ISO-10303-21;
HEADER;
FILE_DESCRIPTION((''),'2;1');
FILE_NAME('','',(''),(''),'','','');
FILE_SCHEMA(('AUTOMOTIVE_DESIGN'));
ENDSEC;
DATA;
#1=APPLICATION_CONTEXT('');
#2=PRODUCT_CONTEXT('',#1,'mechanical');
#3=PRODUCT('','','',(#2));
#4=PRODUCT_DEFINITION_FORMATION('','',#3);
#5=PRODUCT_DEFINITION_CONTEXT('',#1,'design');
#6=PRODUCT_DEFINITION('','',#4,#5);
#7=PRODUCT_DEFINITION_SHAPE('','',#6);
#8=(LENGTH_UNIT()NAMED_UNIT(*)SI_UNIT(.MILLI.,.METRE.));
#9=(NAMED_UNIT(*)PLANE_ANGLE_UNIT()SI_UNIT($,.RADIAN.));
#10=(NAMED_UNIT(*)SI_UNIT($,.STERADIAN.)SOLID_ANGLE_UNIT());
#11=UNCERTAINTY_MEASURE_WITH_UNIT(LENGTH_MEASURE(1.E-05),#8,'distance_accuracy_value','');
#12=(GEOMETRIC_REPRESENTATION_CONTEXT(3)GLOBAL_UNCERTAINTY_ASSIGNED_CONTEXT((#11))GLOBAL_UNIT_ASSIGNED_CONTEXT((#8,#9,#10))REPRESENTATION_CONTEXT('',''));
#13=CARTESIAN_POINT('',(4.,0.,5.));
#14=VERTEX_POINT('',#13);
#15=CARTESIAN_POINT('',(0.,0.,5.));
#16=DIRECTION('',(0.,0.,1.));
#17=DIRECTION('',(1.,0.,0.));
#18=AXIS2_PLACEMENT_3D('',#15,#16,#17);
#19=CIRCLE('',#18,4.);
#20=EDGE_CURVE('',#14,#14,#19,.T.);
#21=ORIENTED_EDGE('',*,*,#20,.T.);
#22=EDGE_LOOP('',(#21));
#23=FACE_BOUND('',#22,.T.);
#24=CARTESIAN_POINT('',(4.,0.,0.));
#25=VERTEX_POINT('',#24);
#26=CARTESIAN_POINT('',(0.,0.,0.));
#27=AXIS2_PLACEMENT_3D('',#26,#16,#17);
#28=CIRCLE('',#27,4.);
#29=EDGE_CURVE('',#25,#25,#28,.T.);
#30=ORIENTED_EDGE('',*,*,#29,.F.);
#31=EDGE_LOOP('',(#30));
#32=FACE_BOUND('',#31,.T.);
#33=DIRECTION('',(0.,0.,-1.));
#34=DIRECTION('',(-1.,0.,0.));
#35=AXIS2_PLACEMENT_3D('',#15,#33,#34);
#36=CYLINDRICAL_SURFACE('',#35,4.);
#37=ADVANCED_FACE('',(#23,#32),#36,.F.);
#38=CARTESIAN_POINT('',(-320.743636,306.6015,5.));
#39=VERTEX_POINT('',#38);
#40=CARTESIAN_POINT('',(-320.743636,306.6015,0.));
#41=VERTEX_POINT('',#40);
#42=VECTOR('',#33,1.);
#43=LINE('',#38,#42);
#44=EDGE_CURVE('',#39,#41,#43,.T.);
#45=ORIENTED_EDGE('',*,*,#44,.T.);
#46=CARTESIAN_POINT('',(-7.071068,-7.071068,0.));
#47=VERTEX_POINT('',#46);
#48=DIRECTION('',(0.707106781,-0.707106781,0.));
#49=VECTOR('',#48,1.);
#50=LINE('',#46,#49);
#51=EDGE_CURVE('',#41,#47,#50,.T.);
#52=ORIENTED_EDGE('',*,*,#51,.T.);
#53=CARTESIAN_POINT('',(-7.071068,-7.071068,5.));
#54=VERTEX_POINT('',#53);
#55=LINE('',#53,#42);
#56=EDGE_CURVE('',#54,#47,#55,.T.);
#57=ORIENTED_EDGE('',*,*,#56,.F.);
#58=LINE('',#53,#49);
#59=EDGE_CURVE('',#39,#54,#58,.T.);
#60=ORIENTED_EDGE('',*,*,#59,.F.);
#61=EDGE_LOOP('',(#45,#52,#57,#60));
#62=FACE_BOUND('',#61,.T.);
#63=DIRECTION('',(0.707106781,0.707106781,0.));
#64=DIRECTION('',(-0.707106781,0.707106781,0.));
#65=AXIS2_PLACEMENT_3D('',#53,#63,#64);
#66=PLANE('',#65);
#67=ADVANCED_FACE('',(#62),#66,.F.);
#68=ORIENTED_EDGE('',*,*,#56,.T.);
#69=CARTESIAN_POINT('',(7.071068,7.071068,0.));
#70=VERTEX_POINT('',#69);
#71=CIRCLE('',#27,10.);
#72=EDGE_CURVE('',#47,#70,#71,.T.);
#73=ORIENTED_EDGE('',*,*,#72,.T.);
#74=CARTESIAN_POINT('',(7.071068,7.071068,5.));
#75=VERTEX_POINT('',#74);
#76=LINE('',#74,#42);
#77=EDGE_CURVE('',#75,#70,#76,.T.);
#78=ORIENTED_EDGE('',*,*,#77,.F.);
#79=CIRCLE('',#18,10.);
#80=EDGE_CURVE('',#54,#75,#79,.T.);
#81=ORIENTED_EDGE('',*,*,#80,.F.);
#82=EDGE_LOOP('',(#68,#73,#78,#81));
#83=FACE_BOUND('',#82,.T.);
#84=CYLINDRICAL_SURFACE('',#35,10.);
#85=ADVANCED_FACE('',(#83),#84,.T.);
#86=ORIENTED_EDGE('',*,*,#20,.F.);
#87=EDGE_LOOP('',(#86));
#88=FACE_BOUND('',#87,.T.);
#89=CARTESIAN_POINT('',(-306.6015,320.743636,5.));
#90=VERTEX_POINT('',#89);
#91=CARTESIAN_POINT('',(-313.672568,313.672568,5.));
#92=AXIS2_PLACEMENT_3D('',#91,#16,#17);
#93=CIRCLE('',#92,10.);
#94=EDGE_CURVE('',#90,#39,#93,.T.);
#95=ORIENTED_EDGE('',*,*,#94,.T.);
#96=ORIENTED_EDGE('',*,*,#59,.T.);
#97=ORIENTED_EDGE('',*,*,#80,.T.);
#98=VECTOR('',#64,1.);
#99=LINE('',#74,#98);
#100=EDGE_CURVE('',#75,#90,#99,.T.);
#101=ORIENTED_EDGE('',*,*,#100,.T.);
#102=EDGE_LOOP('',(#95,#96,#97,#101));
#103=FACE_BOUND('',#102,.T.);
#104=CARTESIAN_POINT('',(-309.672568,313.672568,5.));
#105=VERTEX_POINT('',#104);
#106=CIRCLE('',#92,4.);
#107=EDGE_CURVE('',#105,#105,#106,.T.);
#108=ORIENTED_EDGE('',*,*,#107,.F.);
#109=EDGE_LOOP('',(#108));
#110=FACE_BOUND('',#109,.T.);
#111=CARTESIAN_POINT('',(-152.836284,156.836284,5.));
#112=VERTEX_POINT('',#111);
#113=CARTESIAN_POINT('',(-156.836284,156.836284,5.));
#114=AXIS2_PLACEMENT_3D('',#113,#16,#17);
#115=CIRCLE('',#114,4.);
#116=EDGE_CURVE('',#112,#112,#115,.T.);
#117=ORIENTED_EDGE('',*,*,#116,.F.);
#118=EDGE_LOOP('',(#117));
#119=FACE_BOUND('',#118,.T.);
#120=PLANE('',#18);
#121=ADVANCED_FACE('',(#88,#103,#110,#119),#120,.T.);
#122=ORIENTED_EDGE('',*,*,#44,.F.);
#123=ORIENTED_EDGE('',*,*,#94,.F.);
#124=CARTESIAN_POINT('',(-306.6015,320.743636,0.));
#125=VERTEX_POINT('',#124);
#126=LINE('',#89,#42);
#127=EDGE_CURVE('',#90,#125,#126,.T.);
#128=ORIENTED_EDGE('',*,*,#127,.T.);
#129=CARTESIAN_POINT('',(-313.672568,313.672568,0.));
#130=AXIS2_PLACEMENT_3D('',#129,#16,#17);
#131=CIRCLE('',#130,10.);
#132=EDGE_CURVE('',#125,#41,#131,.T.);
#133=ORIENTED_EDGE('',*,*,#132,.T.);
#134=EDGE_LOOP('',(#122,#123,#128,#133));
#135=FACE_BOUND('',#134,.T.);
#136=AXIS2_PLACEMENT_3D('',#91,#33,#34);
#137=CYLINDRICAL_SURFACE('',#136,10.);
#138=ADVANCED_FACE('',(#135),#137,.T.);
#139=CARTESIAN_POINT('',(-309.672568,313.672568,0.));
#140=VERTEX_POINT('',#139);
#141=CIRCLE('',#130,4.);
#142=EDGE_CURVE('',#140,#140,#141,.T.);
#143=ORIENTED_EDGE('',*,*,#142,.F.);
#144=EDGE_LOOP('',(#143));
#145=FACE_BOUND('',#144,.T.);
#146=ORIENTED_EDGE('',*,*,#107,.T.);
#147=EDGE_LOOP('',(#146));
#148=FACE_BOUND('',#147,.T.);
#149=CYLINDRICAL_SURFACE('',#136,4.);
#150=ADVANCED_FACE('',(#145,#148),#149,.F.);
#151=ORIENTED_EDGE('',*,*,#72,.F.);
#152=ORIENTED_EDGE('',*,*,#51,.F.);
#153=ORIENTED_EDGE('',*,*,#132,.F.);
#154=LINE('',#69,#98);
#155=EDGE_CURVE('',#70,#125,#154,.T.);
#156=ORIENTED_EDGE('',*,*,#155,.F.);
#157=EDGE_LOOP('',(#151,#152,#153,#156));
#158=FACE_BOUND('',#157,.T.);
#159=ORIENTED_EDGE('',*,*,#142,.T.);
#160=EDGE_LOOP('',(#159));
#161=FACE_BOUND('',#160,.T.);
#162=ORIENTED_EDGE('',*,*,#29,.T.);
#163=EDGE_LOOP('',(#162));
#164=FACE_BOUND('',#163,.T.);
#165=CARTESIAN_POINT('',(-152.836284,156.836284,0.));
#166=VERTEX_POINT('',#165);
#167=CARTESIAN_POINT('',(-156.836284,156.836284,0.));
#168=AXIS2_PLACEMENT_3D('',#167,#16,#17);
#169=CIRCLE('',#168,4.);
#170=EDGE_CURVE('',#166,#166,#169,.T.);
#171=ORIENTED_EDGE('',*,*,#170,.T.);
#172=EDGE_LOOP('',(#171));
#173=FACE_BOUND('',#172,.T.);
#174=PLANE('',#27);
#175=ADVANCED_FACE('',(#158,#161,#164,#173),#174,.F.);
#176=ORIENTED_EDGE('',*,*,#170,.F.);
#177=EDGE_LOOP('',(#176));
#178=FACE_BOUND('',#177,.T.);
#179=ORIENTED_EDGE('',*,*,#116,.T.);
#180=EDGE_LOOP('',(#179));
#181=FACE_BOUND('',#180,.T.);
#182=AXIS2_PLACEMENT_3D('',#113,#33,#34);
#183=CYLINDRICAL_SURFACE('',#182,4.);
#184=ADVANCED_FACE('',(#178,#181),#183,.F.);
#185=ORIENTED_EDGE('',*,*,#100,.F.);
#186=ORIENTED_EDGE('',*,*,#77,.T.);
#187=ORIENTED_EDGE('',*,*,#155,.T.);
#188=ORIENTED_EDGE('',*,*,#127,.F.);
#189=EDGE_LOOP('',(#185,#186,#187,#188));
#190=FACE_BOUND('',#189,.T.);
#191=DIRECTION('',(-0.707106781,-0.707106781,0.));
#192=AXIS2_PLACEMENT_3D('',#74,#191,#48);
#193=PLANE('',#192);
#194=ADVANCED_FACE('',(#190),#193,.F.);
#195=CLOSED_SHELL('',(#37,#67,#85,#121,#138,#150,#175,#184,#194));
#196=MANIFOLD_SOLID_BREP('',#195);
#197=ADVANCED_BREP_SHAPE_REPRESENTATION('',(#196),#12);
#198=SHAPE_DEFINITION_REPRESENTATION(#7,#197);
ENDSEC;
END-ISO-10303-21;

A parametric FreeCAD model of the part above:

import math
import FreeCAD as App
import Part
import Sketcher

V = App.Vector
Q = App.Units.Quantity

doc = App.newDocument("Part")
body = doc.addObject("PartDesign::Body", "Body")

# Sketch on XY plane
sketch1 = doc.addObject("Sketcher::SketchObject", "Sketch")
body.addObject(sketch1)
sketch1.AttachmentSupport = (doc.XY_Plane, [""])
sketch1.MapMode = "FlatFace"
sketch1.addGeometry([
    Part.LineSegment(V(-320.743636, 306.6015, 0), V(-7.071068, -7.071068, 0)),  # 0
    Part.ArcOfCircle(Part.Circle(V(0, 0, 0), V(0, 0, 1), 10), math.radians(-135), math.radians(45)),  # 1
    Part.LineSegment(V(7.071068, 7.071068, 0), V(-306.6015, 320.743636, 0)),  # 2
    Part.ArcOfCircle(Part.Circle(V(-313.672568, 313.672568, 0), V(0, 0, 1), 10), math.radians(45), math.radians(225)),  # 3
    Part.Circle(V(0, 0, 0), V(0, 0, 1), 4),  # 4
    Part.Circle(V(-156.836284, 156.836284, 0), V(0, 0, 1), 4),  # 5
    Part.Circle(V(-313.672568, 313.672568, 0), V(0, 0, 1), 4),  # 6
], False)
sketch1.addConstraint([
    Sketcher.Constraint("Tangent", 0, 2, 1, 1),
    Sketcher.Constraint("Tangent", 1, 2, 2, 1),
    Sketcher.Constraint("Tangent", 2, 2, 3, 1),
    Sketcher.Constraint("Tangent", 3, 2, 0, 1),
    Sketcher.Constraint("Coincident", 1, 3, -1, 1),
    Sketcher.Constraint("Coincident", 4, 3, -1, 1),
    Sketcher.Constraint("Coincident", 6, 3, 3, 3),
    Sketcher.Constraint("Equal", 1, 3),
    Sketcher.Constraint("Equal", 4, 5),
    Sketcher.Constraint("Equal", 5, 6),
    Sketcher.Constraint("Diameter", 4, Q("8 mm")),
    Sketcher.Constraint("Radius", 1, Q("10 mm")),
    Sketcher.Constraint("Angle", 0, Q("-45 deg")),
    Sketcher.Constraint("Distance", 0, Q("443.6 mm")),
    Sketcher.Constraint("DistanceY", 0, 2, 5, 3, Q("163.907352 mm")),
    Sketcher.Constraint("DistanceX", 5, 3, 1, 2, Q("163.907352 mm")),
])
pad1 = doc.addObject("PartDesign::Pad", "Pad")
body.addObject(pad1)
pad1.Profile = sketch1
pad1.Length = 5

doc.recompute()
